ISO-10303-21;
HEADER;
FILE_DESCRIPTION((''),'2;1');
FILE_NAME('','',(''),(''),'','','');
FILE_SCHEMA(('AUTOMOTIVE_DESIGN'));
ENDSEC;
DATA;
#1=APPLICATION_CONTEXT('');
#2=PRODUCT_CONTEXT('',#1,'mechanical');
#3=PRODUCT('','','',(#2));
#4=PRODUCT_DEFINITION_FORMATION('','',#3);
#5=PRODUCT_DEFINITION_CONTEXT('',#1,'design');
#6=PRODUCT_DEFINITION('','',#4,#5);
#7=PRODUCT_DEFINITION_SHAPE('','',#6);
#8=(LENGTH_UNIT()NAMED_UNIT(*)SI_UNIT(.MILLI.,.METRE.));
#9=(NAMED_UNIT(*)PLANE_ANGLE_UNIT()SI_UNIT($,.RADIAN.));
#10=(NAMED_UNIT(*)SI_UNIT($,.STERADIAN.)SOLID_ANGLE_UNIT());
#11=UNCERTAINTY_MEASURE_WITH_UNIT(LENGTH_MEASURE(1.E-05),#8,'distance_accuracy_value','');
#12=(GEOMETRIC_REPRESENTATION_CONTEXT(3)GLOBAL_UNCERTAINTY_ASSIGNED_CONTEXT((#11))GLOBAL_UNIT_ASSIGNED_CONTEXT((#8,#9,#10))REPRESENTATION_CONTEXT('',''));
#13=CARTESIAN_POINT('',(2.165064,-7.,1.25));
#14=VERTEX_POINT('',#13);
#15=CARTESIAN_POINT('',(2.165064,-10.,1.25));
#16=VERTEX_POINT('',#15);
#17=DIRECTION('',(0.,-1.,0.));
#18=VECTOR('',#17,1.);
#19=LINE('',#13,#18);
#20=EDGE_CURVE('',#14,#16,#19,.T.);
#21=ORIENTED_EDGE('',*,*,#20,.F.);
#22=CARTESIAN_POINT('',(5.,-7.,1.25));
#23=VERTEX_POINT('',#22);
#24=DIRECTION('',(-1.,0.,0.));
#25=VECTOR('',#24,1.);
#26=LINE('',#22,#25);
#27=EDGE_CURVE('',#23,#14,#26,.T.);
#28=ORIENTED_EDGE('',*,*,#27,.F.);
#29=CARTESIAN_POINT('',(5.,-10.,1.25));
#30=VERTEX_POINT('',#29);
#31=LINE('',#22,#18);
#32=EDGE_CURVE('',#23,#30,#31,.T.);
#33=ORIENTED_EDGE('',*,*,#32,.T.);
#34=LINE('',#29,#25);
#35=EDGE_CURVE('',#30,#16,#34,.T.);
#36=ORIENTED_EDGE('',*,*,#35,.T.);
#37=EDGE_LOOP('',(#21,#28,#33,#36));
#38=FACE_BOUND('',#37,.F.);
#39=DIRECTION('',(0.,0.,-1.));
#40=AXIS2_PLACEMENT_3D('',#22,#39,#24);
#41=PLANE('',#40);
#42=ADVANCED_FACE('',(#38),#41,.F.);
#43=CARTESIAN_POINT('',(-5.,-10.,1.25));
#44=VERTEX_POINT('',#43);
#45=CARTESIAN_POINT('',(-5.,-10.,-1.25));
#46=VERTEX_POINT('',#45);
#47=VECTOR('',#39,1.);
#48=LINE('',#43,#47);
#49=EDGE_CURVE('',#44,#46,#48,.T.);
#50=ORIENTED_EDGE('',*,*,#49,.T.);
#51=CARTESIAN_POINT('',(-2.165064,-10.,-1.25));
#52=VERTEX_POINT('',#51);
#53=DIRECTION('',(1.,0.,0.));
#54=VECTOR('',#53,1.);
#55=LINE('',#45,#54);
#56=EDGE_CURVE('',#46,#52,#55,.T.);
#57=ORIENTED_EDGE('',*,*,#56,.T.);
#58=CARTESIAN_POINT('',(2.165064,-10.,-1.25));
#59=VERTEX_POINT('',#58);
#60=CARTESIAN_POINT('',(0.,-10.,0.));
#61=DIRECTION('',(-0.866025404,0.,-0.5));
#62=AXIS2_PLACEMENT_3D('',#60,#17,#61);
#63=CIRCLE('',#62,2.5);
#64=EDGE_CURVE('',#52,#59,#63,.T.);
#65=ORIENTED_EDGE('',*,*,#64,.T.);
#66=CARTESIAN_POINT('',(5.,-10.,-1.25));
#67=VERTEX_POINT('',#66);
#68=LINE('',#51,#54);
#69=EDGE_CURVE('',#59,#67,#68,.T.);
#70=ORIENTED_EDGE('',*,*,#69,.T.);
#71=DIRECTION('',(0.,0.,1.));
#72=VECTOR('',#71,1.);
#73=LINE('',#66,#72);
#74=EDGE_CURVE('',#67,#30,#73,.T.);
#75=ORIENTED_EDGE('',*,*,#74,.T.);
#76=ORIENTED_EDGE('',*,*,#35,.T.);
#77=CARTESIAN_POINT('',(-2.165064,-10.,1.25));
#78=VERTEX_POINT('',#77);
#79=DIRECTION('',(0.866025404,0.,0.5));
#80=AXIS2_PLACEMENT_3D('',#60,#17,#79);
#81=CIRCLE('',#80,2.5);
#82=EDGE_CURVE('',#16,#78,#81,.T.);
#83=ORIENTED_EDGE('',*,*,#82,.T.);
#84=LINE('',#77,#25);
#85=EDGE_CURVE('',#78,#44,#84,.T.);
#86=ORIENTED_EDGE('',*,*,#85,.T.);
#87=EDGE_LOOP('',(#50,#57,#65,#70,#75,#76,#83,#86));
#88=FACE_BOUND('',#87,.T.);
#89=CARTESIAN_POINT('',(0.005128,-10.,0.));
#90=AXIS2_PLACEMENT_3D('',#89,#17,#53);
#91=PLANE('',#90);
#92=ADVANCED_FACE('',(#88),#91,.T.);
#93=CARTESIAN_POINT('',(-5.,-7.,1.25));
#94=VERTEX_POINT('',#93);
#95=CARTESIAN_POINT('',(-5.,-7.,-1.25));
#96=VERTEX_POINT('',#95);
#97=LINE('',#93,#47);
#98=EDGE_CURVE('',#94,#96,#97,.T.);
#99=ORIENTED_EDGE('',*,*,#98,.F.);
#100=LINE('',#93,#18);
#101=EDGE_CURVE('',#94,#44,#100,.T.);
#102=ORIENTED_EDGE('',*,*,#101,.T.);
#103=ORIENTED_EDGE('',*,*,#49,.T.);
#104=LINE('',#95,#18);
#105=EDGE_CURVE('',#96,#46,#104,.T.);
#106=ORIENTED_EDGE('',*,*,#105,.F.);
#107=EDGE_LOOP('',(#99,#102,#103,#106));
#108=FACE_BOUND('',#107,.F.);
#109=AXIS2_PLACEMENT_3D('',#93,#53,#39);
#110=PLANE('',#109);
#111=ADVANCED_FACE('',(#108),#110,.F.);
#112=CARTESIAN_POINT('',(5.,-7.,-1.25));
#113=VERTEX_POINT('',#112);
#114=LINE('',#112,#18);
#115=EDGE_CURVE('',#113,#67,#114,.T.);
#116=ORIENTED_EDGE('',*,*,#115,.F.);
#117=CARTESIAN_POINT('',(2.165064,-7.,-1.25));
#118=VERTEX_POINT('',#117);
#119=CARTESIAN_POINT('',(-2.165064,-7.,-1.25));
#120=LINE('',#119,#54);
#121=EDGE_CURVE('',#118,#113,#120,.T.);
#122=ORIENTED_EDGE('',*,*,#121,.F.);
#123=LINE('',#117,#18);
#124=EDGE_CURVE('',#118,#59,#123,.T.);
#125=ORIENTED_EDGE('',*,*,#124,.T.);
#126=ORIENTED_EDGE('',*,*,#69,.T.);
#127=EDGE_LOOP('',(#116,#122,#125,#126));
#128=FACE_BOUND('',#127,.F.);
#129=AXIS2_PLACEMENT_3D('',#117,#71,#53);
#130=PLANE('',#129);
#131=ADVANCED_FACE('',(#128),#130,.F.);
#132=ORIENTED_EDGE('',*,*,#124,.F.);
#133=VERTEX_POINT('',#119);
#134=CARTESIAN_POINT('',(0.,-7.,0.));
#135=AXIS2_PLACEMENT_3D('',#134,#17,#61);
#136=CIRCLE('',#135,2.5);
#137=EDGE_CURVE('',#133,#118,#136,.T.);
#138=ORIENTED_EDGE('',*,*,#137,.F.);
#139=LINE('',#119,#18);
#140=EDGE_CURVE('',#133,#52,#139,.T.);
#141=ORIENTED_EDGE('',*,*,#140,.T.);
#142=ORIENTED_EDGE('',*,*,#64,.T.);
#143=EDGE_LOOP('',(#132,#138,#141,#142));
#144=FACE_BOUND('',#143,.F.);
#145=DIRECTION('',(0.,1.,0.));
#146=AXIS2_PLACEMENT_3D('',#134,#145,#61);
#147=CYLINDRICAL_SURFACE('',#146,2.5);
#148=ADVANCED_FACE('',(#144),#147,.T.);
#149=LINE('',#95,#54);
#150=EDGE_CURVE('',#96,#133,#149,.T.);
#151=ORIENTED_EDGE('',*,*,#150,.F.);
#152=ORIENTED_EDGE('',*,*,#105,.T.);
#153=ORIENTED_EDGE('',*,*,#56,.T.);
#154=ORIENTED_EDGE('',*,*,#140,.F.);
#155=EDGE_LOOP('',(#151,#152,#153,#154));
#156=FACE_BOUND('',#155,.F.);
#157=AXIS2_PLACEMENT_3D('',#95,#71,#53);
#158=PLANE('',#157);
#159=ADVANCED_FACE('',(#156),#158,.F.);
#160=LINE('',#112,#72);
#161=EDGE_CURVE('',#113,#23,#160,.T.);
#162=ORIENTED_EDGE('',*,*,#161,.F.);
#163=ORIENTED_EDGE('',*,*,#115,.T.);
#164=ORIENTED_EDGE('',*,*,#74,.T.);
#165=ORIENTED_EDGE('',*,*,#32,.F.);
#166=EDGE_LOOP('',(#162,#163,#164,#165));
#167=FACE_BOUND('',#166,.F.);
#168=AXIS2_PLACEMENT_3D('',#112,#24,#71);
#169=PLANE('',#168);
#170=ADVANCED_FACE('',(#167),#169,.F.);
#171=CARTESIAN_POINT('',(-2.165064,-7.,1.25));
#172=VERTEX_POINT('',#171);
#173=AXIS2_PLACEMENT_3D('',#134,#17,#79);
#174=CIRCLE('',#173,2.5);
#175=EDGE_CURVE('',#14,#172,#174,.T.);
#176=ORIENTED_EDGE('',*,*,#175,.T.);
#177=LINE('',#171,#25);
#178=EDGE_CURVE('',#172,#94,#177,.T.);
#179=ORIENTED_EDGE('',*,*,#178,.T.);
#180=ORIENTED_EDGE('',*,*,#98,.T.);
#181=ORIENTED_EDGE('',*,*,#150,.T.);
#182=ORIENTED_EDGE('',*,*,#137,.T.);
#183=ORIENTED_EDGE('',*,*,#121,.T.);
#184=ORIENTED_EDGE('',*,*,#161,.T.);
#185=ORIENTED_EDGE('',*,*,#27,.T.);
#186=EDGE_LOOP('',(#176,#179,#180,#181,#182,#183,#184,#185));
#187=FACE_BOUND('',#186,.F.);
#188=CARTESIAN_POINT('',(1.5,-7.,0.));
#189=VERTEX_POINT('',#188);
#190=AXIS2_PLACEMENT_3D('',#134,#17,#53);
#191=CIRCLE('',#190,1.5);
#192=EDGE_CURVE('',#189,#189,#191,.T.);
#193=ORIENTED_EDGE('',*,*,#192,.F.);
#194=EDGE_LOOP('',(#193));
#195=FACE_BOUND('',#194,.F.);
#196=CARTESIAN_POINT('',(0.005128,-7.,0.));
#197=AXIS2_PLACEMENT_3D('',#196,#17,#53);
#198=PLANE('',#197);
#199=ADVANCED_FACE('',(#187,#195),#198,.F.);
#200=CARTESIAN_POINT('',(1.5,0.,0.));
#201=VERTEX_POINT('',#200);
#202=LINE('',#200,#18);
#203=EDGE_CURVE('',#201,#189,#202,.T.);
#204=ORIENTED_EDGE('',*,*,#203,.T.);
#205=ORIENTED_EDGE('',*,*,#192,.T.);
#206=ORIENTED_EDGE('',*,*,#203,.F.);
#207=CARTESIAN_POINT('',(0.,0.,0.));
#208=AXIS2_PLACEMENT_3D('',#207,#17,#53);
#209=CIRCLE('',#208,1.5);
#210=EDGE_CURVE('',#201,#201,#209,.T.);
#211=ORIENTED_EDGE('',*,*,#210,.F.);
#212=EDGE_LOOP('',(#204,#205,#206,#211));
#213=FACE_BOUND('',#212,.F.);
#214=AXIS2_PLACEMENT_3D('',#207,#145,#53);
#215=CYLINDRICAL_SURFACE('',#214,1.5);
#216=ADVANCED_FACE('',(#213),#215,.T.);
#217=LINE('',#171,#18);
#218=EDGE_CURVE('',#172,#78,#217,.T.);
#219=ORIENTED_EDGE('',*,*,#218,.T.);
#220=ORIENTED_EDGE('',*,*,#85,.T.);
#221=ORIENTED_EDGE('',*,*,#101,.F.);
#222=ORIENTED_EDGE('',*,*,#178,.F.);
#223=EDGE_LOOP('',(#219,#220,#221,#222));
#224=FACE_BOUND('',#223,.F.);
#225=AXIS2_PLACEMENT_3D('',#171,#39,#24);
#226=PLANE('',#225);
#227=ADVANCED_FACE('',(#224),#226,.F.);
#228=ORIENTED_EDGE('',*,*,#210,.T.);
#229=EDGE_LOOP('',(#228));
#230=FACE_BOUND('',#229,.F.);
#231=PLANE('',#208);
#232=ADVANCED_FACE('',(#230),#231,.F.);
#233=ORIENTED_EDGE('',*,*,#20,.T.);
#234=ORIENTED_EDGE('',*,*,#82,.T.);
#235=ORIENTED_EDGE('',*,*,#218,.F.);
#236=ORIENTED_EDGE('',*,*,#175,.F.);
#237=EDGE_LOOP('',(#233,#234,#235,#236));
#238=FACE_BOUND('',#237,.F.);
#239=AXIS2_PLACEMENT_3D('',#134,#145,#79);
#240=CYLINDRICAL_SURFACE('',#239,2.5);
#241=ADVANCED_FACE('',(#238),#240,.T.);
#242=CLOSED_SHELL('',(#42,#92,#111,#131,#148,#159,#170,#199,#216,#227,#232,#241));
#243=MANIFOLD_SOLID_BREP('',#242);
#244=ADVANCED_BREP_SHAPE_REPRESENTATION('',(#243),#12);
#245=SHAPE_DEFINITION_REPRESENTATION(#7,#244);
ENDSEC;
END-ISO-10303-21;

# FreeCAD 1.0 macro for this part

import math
import FreeCAD as App
import Part
import Sketcher

V = App.Vector

doc = App.newDocument("Part")
body = doc.addObject("PartDesign::Body", "Body")

sketch1 = doc.addObject("Sketcher::SketchObject", "Sketch")
body.addObject(sketch1)
sketch1.AttachmentSupport = (doc.XZ_Plane, [""])
sketch1.MapMode = "FlatFace"
sketch1.addGeometry(Part.Circle(V(0, 0, 0), V(0, 0, 1), 1.5), False)
sketch1.addConstraint([
    Sketcher.Constraint("Coincident", 0, 3, -1, 1),
    Sketcher.Constraint("Diameter", 0, 3.0),
])
pad1 = doc.addObject("PartDesign::Pad", "Pad")
body.addObject(pad1)
pad1.Profile = sketch1
pad1.Length = 7

sketch2 = doc.addObject("Sketcher::SketchObject", "Sketch001")
body.addObject(sketch2)
sketch2.AttachmentSupport = (doc.XZ_Plane, [""])
sketch2.MapMode = "FlatFace"
sketch2.AttachmentOffset = App.Placement(V(0, 0, 7), App.Rotation())
sketch2.addGeometry([
    Part.ArcOfCircle(Part.Circle(V(0, 0, 0), V(0, 0, 1), 2.5), math.radians(-150), math.radians(-30)),
    Part.LineSegment(V(2.165064, -1.25, 0), V(5, -1.25, 0)),
    Part.LineSegment(V(5, -1.25, 0), V(5, 1.25, 0)),
    Part.LineSegment(V(5, 1.25, 0), V(2.165064, 1.25, 0)),
    Part.ArcOfCircle(Part.Circle(V(0, 0, 0), V(0, 0, 1), 2.5), math.radians(30), math.radians(150)),
    Part.LineSegment(V(-2.165064, 1.25, 0), V(-5, 1.25, 0)),
    Part.LineSegment(V(-5, 1.25, 0), V(-5, -1.25, 0)),
    Part.LineSegment(V(-5, -1.25, 0), V(-2.165064, -1.25, 0)),
], False)
sketch2.addConstraint([
    Sketcher.Constraint("Coincident", 0, 2, 1, 1),
    Sketcher.Constraint("Coincident", 1, 2, 2, 1),
    Sketcher.Constraint("Coincident", 2, 2, 3, 1),
    Sketcher.Constraint("Coincident", 3, 2, 4, 1),
    Sketcher.Constraint("Coincident", 4, 2, 5, 1),
    Sketcher.Constraint("Coincident", 5, 2, 6, 1),
    Sketcher.Constraint("Coincident", 6, 2, 7, 1),
    Sketcher.Constraint("Coincident", 7, 2, 0, 1),
    Sketcher.Constraint("Horizontal", 1),
    Sketcher.Constraint("Vertical", 2),
    Sketcher.Constraint("Horizontal", 3),
    Sketcher.Constraint("Horizontal", 5),
    Sketcher.Constraint("Vertical", 6),
    Sketcher.Constraint("Horizontal", 7),
    Sketcher.Constraint("Coincident", 0, 3, -1, 1),
    Sketcher.Constraint("Coincident", 4, 3, -1, 1),
    Sketcher.Constraint("Equal", 0, 4),
    Sketcher.Constraint("Symmetric", 1, 2, 5, 2, -1, 1),
    Sketcher.Constraint("Horizontal", 3, 2, 4, 2),
    Sketcher.Constraint("Horizontal", 1, 2, 6, 2),
    Sketcher.Constraint("Radius", 0, 2.5),
    Sketcher.Constraint("DistanceY", 2, 1, 2, 2, 2.5),
    Sketcher.Constraint("DistanceX", -1, 1, 1, 2, 5.0),
])
pad2 = doc.addObject("PartDesign::Pad", "Pad001")
body.addObject(pad2)
pad2.Profile = sketch2
pad2.Length = 3

doc.recompute()
